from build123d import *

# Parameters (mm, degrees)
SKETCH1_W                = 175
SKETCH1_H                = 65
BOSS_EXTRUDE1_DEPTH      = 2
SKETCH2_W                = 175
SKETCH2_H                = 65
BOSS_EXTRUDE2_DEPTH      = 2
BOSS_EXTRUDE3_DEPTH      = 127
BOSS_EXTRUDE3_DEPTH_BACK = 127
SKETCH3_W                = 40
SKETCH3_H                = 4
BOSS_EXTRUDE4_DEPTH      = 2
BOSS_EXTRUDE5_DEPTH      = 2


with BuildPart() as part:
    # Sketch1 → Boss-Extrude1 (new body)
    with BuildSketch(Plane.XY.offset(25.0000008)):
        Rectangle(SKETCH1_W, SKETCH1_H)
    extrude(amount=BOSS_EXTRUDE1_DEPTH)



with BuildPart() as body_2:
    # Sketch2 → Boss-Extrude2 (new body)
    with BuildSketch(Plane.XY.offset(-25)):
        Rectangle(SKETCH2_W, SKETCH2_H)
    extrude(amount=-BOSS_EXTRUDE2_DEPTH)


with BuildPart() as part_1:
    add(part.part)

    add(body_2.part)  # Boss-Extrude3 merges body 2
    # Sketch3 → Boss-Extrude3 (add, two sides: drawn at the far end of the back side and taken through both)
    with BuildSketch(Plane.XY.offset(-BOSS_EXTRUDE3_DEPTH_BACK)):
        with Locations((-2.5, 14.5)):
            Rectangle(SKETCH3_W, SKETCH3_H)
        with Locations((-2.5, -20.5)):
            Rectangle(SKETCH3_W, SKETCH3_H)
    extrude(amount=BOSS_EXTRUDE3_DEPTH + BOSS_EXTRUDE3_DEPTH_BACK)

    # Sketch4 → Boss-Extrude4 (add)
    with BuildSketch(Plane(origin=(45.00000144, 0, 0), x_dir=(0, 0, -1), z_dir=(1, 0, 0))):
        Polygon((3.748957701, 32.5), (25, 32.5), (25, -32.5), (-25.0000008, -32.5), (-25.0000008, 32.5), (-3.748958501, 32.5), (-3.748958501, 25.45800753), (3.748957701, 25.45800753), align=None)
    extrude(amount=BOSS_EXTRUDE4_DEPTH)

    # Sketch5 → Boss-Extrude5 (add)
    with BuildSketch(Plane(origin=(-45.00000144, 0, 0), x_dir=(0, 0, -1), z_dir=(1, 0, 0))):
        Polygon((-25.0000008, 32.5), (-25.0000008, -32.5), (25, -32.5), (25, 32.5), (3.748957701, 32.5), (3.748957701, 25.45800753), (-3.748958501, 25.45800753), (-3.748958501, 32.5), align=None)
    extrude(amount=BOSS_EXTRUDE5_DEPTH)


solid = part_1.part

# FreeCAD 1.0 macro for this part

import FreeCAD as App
import Part
import Sketcher

V = App.Vector

doc = App.newDocument("Part")
params = doc.addObject("Spreadsheet::Sheet", "Params")
for row, (alias, value) in enumerate([
    ("sketch1_width", "175 mm"),
    ("sketch1_height", "65 mm"),
    ("pad1_length", "2 mm"),
    ("sketch2_width", "175 mm"),
    ("sketch2_height", "65 mm"),
    ("pad2_length", "2 mm"),
    ("sketch3_width", "40 mm"),
    ("sketch3_height", "4 mm"),
    ("pad3_length", "127 mm"),
    ("pad3_length2", "127 mm"),
    ("sketch4_width", "65 mm"),
    ("sketch4_height", "50.000001 mm"),
    ("pad4_length", "2 mm"),
    ("sketch5_width", "65 mm"),
    ("sketch5_height", "50.000001 mm"),
    ("pad5_length", "2 mm"),
], start=1):
    params.set(f"A{row}", alias)
    params.set(f"B{row}", "=" + value)
    params.setAlias(f"B{row}", alias)

body = doc.addObject("PartDesign::Body", "Body")

# Sketch on XY plane
sketch1 = body.newObject("Sketcher::SketchObject", "Sketch")
sketch1.AttachmentSupport = (doc.getObject("XY_Plane"), [""])
sketch1.MapMode = "FlatFace"
sketch1.AttachmentOffset = App.Placement(V(0, 0, 25.000001), App.Rotation())
sketch1.addGeometry([
    Part.LineSegment(V(-88, 32, 0), V(-88, -32, 0)),
    Part.LineSegment(V(-88, -32, 0), V(88, -32, 0)),
    Part.LineSegment(V(88, -32, 0), V(88, 32, 0)),
    Part.LineSegment(V(88, 32, 0), V(-88, 32, 0)),
], False)
sketch1.addConstraint([
    Sketcher.Constraint("Coincident", 0, 2, 1, 1),
    Sketcher.Constraint("Coincident", 1, 2, 2, 1),
    Sketcher.Constraint("Coincident", 2, 2, 3, 1),
    Sketcher.Constraint("Coincident", 3, 2, 0, 1),
    Sketcher.Constraint("Vertical", 0),
    Sketcher.Constraint("Horizontal", 1),
    Sketcher.Constraint("Vertical", 2),
    Sketcher.Constraint("Horizontal", 3),
    Sketcher.Constraint("Symmetric", 0, 2, 2, 2, -1, 1),
    Sketcher.Constraint("DistanceX", 1, 1, 1, 2, 175.0),
    Sketcher.Constraint("DistanceY", 0, 2, 0, 1, 65.0),
])
sketch1.setExpression("Constraints[9]", "Params.sketch1_width")
sketch1.setExpression("Constraints[10]", "Params.sketch1_height")
pad1 = body.newObject("PartDesign::Pad", "Pad")
pad1.Profile = sketch1
pad1.setExpression("Length", "Params.pad1_length")
body2 = doc.addObject("PartDesign::Body", "Body001")

# Sketch on XY plane
sketch2 = body2.newObject("Sketcher::SketchObject", "Sketch001")
sketch2.AttachmentSupport = (doc.getObject("XY_Plane001"), [""])
sketch2.MapMode = "FlatFace"
sketch2.AttachmentOffset = App.Placement(V(0, 0, -25), App.Rotation())
sketch2.addGeometry([
    Part.LineSegment(V(-88, 32, 0), V(-88, -32, 0)),
    Part.LineSegment(V(-88, -32, 0), V(88, -32, 0)),
    Part.LineSegment(V(88, -32, 0), V(88, 32, 0)),
    Part.LineSegment(V(88, 32, 0), V(-88, 32, 0)),
], False)
sketch2.addConstraint([
    Sketcher.Constraint("Coincident", 0, 2, 1, 1),
    Sketcher.Constraint("Coincident", 1, 2, 2, 1),
    Sketcher.Constraint("Coincident", 2, 2, 3, 1),
    Sketcher.Constraint("Coincident", 3, 2, 0, 1),
    Sketcher.Constraint("Vertical", 0),
    Sketcher.Constraint("Horizontal", 1),
    Sketcher.Constraint("Vertical", 2),
    Sketcher.Constraint("Horizontal", 3),
    Sketcher.Constraint("Symmetric", 0, 2, 2, 2, -1, 1),
    Sketcher.Constraint("DistanceX", 1, 1, 1, 2, 175.0),
    Sketcher.Constraint("DistanceY", 0, 2, 0, 1, 65.0),
])
sketch2.setExpression("Constraints[9]", "Params.sketch2_width")
sketch2.setExpression("Constraints[10]", "Params.sketch2_height")
pad2 = body2.newObject("PartDesign::Pad", "Pad001")
pad2.Profile = sketch2
pad2.setExpression("Length", "Params.pad2_length")
pad2.Reversed = True
body.AllowCompound = True
doc.recompute()

boolean = body.newObject("PartDesign::Boolean", "Boolean")
boolean.Type = "Fuse"
boolean.addObjects([body2])

# Sketch on XY plane
sketch3 = body.newObject("Sketcher::SketchObject", "Sketch002")
sketch3.AttachmentSupport = (doc.getObject("XY_Plane"), [""])
sketch3.MapMode = "FlatFace"
sketch3.addGeometry([
    Part.LineSegment(V(-22.5, 16.5, 0), V(-22.5, 12.5, 0)),  # 0
    Part.LineSegment(V(-22.5, 12.5, 0), V(17.5, 12.5, 0)),  # 1
    Part.LineSegment(V(17.5, 12.5, 0), V(17.5, 16.5, 0)),  # 2
    Part.LineSegment(V(17.5, 16.5, 0), V(-22.5, 16.5, 0)),  # 3
    Part.LineSegment(V(-22.5, -18.5, 0), V(-22.5, -22.5, 0)),  # 4
    Part.LineSegment(V(-22.5, -22.5, 0), V(17.5, -22.5, 0)),  # 5
    Part.LineSegment(V(17.5, -22.5, 0), V(17.5, -18.5, 0)),  # 6
    Part.LineSegment(V(17.5, -18.5, 0), V(-22.5, -18.5, 0)),  # 7
], False)
sketch3.addConstraint([
    Sketcher.Constraint("Coincident", 0, 2, 1, 1),
    Sketcher.Constraint("Coincident", 1, 2, 2, 1),
    Sketcher.Constraint("Coincident", 2, 2, 3, 1),
    Sketcher.Constraint("Coincident", 3, 2, 0, 1),
    Sketcher.Constraint("Coincident", 4, 2, 5, 1),
    Sketcher.Constraint("Coincident", 5, 2, 6, 1),
    Sketcher.Constraint("Coincident", 6, 2, 7, 1),
    Sketcher.Constraint("Coincident", 7, 2, 4, 1),
    Sketcher.Constraint("Vertical", 0),
    Sketcher.Constraint("Horizontal", 1),
    Sketcher.Constraint("Vertical", 2),
    Sketcher.Constraint("Horizontal", 3),
    Sketcher.Constraint("Vertical", 4),
    Sketcher.Constraint("Horizontal", 5),
    Sketcher.Constraint("Vertical", 6),
    Sketcher.Constraint("Horizontal", 7),
    Sketcher.Constraint("Vertical", 3, 2, 4, 2),
    Sketcher.Constraint("Vertical", 2, 2, 5, 2),
    Sketcher.Constraint("Equal", 2, 4),
    Sketcher.Constraint("DistanceX", 1, 1, 1, 2, 40.0),
    Sketcher.Constraint("DistanceY", 0, 2, 0, 1, 4.0),
    Sketcher.Constraint("DistanceY", 4, 2, 0, 2, 35.0),
    Sketcher.Constraint("DistanceX", 0, 2, -1, 1, 22.5),
    Sketcher.Constraint("DistanceY", -1, 1, 0, 2, 12.5),
])
sketch3.setExpression("Constraints[19]", "Params.sketch3_width")
sketch3.setExpression("Constraints[20]", "Params.sketch3_height")
pad3 = body.newObject("PartDesign::Pad", "Pad002")
pad3.Profile = sketch3
pad3.Type = "TwoLengths"
pad3.setExpression("Length", "Params.pad3_length")
pad3.setExpression("Length2", "Params.pad3_length2")

# Sketch on YZ plane
sketch4 = body.newObject("Sketcher::SketchObject", "Sketch003")
sketch4.AttachmentSupport = (doc.getObject("YZ_Plane"), [""])
sketch4.MapMode = "FlatFace"
sketch4.AttachmentOffset = App.Placement(V(0, 0, 45.000001), App.Rotation())
sketch4.addGeometry([
    Part.LineSegment(V(32, -25, 0), V(32, -4, 0)),  # 0
    Part.LineSegment(V(32, -4, 0), V(25, -4, 0)),  # 1
    Part.LineSegment(V(25, -4, 0), V(25, 4, 0)),  # 2
    Part.LineSegment(V(25, 4, 0), V(32, 4, 0)),  # 3
    Part.LineSegment(V(32, 4, 0), V(32, 25, 0)),  # 4
    Part.LineSegment(V(32, 25, 0), V(-32, 25, 0)),  # 5
    Part.LineSegment(V(-32, 25, 0), V(-32, -25, 0)),  # 6
    Part.LineSegment(V(-32, -25, 0), V(32, -25, 0)),  # 7
], False)
sketch4.addConstraint([
    Sketcher.Constraint("Coincident", 0, 2, 1, 1),
    Sketcher.Constraint("Coincident", 1, 2, 2, 1),
    Sketcher.Constraint("Coincident", 2, 2, 3, 1),
    Sketcher.Constraint("Coincident", 3, 2, 4, 1),
    Sketcher.Constraint("Coincident", 4, 2, 5, 1),
    Sketcher.Constraint("Coincident", 5, 2, 6, 1),
    Sketcher.Constraint("Coincident", 6, 2, 7, 1),
    Sketcher.Constraint("Coincident", 7, 2, 0, 1),
    Sketcher.Constraint("Vertical", 0),
    Sketcher.Constraint("Horizontal", 1),
    Sketcher.Constraint("Vertical", 2),
    Sketcher.Constraint("Horizontal", 3),
    Sketcher.Constraint("Vertical", 4),
    Sketcher.Constraint("Horizontal", 5),
    Sketcher.Constraint("Vertical", 6),
    Sketcher.Constraint("Horizontal", 7),
    Sketcher.Constraint("Symmetric", 4, 2, 6, 2, -1, 1),
    Sketcher.Constraint("Symmetric", 0, 2, 3, 2, -1),
    Sketcher.Constraint("DistanceX", 5, 2, 5, 1, 65.0),
    Sketcher.Constraint("DistanceY", 6, 2, 6, 1, 50.000001),
    Sketcher.Constraint("DistanceX", 1, 2, 1, 1, 7.041992),
    Sketcher.Constraint("DistanceY", 0, 1, 0, 2, 21.251042),
])
sketch4.setExpression("Constraints[18]", "Params.sketch4_width")
sketch4.setExpression("Constraints[19]", "Params.sketch4_height")
pad4 = body.newObject("PartDesign::Pad", "Pad003")
pad4.Profile = sketch4
pad4.setExpression("Length", "Params.pad4_length")

# Sketch on YZ plane
sketch5 = body.newObject("Sketcher::SketchObject", "Sketch004")
sketch5.AttachmentSupport = (doc.getObject("YZ_Plane"), [""])
sketch5.MapMode = "FlatFace"
sketch5.AttachmentOffset = App.Placement(V(0, 0, -45.000001), App.Rotation())
sketch5.addGeometry([
    Part.LineSegment(V(32, 25, 0), V(-32, 25, 0)),  # 0
    Part.LineSegment(V(-32, 25, 0), V(-32, -25, 0)),  # 1
    Part.LineSegment(V(-32, -25, 0), V(32, -25, 0)),  # 2
    Part.LineSegment(V(32, -25, 0), V(32, -4, 0)),  # 3
    Part.LineSegment(V(32, -4, 0), V(25, -4, 0)),  # 4
    Part.LineSegment(V(25, -4, 0), V(25, 4, 0)),  # 5
    Part.LineSegment(V(25, 4, 0), V(32, 4, 0)),  # 6
    Part.LineSegment(V(32, 4, 0), V(32, 25, 0)),  # 7
], False)
sketch5.addConstraint([
    Sketcher.Constraint("Coincident", 0, 2, 1, 1),
    Sketcher.Constraint("Coincident", 1, 2, 2, 1),
    Sketcher.Constraint("Coincident", 2, 2, 3, 1),
    Sketcher.Constraint("Coincident", 3, 2, 4, 1),
    Sketcher.Constraint("Coincident", 4, 2, 5, 1),
    Sketcher.Constraint("Coincident", 5, 2, 6, 1),
    Sketcher.Constraint("Coincident", 6, 2, 7, 1),
    Sketcher.Constraint("Coincident", 7, 2, 0, 1),
    Sketcher.Constraint("Horizontal", 0),
    Sketcher.Constraint("Vertical", 1),
    Sketcher.Constraint("Horizontal", 2),
    Sketcher.Constraint("Vertical", 3),
    Sketcher.Constraint("Horizontal", 4),
    Sketcher.Constraint("Vertical", 5),
    Sketcher.Constraint("Horizontal", 6),
    Sketcher.Constraint("Vertical", 7),
    Sketcher.Constraint("Symmetric", 0, 2, 2, 2, -1, 1),
    Sketcher.Constraint("Symmetric", 3, 2, 6, 2, -1),
    Sketcher.Constraint("DistanceX", 0, 2, 0, 1, 65.0),
    Sketcher.Constraint("DistanceY", 1, 2, 1, 1, 50.000001),
    Sketcher.Constraint("DistanceX", 4, 2, 4, 1, 7.041992),
    Sketcher.Constraint("DistanceY", 3, 1, 3, 2, 21.251042),
])
sketch5.setExpression("Constraints[18]", "Params.sketch5_width")
sketch5.setExpression("Constraints[19]", "Params.sketch5_height")
pad5 = body.newObject("PartDesign::Pad", "Pad004")
pad5.Profile = sketch5
pad5.setExpression("Length", "Params.pad5_length")

doc.recompute()
